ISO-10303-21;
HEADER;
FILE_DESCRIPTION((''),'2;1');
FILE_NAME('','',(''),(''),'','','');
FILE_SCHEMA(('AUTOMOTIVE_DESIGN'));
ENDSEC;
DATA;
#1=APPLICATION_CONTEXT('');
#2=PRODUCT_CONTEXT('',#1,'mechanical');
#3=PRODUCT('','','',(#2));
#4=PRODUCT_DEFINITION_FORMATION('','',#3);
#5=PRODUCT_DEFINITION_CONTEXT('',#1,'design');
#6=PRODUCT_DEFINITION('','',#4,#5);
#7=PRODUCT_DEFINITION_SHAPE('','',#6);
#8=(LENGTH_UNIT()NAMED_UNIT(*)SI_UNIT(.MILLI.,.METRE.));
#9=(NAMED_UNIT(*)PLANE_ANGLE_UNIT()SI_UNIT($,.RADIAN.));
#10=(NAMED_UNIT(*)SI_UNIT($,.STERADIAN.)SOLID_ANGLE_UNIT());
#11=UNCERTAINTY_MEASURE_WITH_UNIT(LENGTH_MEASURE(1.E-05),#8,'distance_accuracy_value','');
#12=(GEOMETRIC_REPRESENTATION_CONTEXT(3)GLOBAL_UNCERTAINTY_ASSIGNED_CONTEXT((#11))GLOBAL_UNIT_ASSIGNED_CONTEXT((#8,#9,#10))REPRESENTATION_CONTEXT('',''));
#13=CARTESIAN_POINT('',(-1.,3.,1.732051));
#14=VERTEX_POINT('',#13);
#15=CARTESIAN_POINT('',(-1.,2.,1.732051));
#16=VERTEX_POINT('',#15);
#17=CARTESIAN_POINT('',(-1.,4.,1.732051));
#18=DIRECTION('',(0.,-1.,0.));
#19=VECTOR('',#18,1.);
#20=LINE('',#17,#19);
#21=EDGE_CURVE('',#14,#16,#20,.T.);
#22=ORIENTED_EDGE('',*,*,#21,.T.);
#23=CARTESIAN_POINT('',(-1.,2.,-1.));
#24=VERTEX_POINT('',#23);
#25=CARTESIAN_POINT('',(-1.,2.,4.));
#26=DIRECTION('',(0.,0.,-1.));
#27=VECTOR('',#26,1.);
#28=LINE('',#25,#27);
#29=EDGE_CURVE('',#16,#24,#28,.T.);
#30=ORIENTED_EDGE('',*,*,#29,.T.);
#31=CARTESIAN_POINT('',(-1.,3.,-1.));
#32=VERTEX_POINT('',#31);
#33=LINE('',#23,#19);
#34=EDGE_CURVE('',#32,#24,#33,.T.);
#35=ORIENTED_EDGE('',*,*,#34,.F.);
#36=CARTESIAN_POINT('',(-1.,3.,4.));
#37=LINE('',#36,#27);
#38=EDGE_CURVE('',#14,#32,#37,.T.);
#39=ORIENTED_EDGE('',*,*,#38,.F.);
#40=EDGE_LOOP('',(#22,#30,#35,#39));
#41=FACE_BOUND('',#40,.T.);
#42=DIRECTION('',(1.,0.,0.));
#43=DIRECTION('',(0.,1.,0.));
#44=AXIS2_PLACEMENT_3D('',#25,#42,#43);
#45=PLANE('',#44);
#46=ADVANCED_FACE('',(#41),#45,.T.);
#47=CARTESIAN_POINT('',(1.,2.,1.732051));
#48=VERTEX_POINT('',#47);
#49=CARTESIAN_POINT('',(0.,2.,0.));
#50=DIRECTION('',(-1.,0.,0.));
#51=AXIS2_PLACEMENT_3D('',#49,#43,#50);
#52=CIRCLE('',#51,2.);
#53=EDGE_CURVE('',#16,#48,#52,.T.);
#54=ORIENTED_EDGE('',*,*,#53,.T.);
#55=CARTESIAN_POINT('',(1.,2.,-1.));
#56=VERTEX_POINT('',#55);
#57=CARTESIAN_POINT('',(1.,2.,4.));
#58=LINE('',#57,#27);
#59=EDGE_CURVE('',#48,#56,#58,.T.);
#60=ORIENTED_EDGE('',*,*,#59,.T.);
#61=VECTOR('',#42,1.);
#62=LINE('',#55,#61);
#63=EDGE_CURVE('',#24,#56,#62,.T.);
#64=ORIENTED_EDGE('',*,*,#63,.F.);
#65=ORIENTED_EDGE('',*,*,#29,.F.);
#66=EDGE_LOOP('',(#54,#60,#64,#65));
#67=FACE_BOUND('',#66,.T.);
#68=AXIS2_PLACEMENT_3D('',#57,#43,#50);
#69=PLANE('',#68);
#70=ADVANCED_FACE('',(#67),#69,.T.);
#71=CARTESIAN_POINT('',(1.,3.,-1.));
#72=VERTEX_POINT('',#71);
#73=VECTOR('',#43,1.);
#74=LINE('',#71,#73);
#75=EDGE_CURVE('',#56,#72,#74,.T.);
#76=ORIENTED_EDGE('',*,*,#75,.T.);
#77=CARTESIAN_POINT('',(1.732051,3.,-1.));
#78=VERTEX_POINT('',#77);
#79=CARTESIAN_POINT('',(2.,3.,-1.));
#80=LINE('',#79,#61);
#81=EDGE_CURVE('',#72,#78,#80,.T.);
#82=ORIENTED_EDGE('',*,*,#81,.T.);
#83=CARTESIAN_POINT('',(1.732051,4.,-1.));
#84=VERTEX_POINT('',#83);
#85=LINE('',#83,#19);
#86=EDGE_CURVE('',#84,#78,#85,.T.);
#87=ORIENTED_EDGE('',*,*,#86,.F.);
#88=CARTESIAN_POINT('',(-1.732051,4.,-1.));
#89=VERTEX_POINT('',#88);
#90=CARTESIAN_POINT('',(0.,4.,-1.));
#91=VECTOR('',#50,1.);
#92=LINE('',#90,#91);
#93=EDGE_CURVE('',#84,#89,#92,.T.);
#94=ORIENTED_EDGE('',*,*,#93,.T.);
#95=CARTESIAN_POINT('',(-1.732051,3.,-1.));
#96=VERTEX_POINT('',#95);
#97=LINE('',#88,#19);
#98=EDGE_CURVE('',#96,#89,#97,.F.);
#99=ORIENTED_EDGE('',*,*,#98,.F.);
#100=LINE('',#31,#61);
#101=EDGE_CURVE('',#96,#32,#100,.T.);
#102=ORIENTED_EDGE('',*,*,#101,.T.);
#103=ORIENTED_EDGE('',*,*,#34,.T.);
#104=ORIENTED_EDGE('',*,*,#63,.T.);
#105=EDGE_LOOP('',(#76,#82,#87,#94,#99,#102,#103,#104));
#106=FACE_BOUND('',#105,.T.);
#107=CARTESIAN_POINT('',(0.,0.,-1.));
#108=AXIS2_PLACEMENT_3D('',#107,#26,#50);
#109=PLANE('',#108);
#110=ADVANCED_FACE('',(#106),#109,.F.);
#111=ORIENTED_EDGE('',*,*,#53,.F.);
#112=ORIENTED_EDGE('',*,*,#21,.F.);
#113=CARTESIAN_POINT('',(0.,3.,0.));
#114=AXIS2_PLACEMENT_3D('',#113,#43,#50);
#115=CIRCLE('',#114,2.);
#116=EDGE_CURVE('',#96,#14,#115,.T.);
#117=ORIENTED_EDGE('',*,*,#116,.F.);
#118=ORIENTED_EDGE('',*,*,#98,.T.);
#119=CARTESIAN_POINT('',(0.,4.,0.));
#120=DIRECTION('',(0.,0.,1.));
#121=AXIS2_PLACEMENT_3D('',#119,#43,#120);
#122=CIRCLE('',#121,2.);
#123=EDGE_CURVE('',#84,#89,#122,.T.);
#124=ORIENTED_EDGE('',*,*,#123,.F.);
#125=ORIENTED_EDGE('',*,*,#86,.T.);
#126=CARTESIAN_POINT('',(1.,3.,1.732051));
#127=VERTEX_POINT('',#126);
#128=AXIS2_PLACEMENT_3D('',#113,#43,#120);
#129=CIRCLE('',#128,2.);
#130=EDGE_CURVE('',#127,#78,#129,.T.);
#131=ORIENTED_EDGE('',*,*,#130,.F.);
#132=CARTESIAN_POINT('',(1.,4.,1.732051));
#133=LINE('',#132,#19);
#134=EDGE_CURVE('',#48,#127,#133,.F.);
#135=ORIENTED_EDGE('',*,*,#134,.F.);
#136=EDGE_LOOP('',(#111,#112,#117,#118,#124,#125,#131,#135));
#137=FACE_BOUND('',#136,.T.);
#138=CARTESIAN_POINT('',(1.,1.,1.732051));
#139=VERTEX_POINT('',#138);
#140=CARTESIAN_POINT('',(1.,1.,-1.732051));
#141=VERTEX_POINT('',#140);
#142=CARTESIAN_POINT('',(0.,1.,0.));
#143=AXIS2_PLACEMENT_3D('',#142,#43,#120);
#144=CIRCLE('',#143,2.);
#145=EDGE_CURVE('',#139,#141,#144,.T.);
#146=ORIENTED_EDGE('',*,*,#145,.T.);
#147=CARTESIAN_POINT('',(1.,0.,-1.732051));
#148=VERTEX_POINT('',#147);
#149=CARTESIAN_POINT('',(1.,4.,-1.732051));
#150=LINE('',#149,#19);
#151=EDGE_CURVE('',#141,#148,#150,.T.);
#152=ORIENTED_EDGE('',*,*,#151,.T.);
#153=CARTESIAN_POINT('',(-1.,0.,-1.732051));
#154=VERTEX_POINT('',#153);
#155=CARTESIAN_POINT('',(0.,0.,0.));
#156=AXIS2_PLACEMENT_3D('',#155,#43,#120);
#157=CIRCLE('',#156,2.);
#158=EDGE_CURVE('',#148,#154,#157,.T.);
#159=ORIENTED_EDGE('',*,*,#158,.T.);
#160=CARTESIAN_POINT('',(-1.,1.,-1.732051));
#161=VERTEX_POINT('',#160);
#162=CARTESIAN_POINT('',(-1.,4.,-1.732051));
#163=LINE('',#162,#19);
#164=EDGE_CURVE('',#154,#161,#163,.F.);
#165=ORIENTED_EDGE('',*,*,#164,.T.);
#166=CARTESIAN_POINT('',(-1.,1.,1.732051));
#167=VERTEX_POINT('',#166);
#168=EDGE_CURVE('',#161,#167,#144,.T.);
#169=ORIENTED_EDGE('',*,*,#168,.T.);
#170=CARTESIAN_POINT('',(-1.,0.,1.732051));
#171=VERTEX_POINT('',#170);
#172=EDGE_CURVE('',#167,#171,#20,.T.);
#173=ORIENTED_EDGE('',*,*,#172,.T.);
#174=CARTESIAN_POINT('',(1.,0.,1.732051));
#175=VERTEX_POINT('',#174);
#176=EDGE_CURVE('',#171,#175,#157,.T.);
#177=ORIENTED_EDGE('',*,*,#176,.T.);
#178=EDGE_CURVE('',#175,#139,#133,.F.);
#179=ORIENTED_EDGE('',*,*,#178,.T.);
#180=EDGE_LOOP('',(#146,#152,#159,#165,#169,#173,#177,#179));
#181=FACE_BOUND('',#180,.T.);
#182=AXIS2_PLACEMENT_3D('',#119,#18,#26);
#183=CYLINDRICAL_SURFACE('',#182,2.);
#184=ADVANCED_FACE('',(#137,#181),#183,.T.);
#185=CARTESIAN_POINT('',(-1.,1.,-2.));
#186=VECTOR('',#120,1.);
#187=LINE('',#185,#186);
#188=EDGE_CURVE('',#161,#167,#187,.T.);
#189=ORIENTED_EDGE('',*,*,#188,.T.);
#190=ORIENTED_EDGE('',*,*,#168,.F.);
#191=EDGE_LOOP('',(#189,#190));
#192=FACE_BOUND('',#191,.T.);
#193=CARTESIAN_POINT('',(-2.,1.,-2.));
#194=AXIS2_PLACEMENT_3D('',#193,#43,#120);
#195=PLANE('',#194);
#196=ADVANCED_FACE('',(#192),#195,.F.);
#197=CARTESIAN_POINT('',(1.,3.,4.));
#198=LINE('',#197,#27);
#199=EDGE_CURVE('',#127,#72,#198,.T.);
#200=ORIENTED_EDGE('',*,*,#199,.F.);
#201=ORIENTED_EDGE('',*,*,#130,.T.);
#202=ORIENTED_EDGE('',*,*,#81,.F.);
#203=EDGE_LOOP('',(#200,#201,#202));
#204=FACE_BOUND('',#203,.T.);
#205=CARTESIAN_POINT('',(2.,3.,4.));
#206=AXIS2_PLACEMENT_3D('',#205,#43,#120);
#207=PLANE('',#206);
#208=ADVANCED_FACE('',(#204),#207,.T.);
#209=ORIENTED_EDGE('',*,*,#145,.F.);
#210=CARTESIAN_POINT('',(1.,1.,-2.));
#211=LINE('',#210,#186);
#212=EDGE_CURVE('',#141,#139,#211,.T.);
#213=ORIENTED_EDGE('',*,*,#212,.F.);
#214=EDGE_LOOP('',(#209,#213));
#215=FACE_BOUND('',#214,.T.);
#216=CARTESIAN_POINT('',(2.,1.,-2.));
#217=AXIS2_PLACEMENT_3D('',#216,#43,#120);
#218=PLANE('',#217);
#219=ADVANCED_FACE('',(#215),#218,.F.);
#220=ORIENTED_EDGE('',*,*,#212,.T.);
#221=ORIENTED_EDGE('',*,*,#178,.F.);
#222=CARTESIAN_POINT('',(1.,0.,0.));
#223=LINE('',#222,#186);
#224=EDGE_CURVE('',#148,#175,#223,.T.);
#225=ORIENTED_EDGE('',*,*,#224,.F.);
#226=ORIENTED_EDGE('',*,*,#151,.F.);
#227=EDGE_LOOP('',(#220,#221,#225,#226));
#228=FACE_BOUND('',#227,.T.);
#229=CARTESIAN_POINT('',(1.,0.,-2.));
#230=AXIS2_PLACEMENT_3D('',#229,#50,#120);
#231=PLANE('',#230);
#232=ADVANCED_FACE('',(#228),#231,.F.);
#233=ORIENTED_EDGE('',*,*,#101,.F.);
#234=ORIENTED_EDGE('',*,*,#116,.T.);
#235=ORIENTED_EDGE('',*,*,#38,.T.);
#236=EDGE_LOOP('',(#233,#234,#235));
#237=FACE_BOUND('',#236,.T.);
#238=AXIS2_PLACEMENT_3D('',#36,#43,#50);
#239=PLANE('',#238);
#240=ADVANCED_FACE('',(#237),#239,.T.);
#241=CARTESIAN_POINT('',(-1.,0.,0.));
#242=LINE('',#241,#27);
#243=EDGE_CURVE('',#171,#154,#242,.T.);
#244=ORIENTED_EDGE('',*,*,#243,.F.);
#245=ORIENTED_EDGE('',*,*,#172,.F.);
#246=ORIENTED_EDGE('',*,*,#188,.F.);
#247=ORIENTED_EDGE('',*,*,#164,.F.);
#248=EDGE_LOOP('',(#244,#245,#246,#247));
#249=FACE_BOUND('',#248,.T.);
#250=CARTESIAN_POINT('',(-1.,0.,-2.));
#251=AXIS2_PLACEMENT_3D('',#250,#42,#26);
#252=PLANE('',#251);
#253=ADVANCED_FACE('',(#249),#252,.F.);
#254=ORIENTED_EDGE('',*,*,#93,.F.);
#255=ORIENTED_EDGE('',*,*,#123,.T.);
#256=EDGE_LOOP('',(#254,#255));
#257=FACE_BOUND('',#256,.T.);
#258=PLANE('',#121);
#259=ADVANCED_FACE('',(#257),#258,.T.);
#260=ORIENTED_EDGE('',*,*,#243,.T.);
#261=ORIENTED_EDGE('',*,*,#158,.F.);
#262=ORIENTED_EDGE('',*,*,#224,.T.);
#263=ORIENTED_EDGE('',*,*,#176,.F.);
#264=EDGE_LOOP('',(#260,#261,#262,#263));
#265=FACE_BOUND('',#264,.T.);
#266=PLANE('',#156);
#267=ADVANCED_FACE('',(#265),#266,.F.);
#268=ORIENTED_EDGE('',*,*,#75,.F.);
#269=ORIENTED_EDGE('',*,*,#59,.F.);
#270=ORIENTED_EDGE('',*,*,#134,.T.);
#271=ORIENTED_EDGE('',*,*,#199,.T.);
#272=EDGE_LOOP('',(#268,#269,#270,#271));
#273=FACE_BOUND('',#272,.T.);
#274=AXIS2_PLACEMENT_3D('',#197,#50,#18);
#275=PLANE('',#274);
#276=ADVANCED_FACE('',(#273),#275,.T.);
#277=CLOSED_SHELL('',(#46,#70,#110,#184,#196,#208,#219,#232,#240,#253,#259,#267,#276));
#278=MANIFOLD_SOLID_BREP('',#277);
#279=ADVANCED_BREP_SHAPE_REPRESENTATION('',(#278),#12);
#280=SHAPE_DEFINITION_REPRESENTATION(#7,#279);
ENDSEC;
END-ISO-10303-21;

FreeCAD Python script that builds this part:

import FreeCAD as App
import Part
import Sketcher
from FreeCAD import Vector

doc = App.newDocument("Part")
body = doc.addObject("PartDesign::Body", "Body")

# Sketch on XZ plane
sketch1 = body.newObject("Sketcher::SketchObject", "Sketch")
sketch1.AttachmentSupport = (doc.getObject("XZ_Plane"), [""])
sketch1.MapMode = "FlatFace"
sketch1.addGeometry(Part.Circle(Vector(0, 0, 0), Vector(0, 0, 1), 2), False)
sketch1.addConstraint([
    Sketcher.Constraint("Coincident", 0, 3, -1, 1),
    Sketcher.Constraint("Diameter", 0, 4.0),
])
pad1 = body.newObject("PartDesign::Pad", "Pad")
pad1.Profile = sketch1
pad1.Length = 4
pad1.Reversed = True

# Sketch on XY plane
sketch2 = body.newObject("Sketcher::SketchObject", "Sketch001")
sketch2.AttachmentSupport = (doc.getObject("XY_Plane"), [""])
sketch2.MapMode = "FlatFace"
sketch2.addGeometry([
    Part.LineSegment(Vector(-2, 1, 0), Vector(-2, 0, 0)),  # 0
    Part.LineSegment(Vector(-2, 0, 0), Vector(-1, 0, 0)),  # 1
    Part.LineSegment(Vector(-1, 0, 0), Vector(-1, 1, 0)),  # 2
    Part.LineSegment(Vector(-1, 1, 0), Vector(-2, 1, 0)),  # 3
    Part.LineSegment(Vector(1, 1, 0), Vector(1, 0, 0)),  # 4
    Part.LineSegment(Vector(1, 0, 0), Vector(2, 0, 0)),  # 5
    Part.LineSegment(Vector(2, 0, 0), Vector(2, 1, 0)),  # 6
    Part.LineSegment(Vector(2, 1, 0), Vector(1, 1, 0)),  # 7
], False)
sketch2.addConstraint([
    Sketcher.Constraint("Coincident", 0, 2, 1, 1),
    Sketcher.Constraint("Coincident", 1, 2, 2, 1),
    Sketcher.Constraint("Coincident", 2, 2, 3, 1),
    Sketcher.Constraint("Coincident", 3, 2, 0, 1),
    Sketcher.Constraint("Coincident", 4, 2, 5, 1),
    Sketcher.Constraint("Coincident", 5, 2, 6, 1),
    Sketcher.Constraint("Coincident", 6, 2, 7, 1),
    Sketcher.Constraint("Coincident", 7, 2, 4, 1),
    Sketcher.Constraint("Vertical", 0),
    Sketcher.Constraint("Horizontal", 1),
    Sketcher.Constraint("Vertical", 2),
    Sketcher.Constraint("Horizontal", 3),
    Sketcher.Constraint("Vertical", 4),
    Sketcher.Constraint("Horizontal", 5),
    Sketcher.Constraint("Vertical", 6),
    Sketcher.Constraint("Horizontal", 7),
    Sketcher.Constraint("Symmetric", 1, 2, 4, 2, -1, 1),
    Sketcher.Constraint("Symmetric", 0, 2, 5, 2, -2),
    Sketcher.Constraint("Horizontal", 3, 2, 6, 2),
    Sketcher.Constraint("Equal", 7, 0),
    Sketcher.Constraint("DistanceX", 1, 1, 1, 2, 1.0),
    Sketcher.Constraint("DistanceX", 0, 2, -1, 1, 2.0),
])
pocket1 = body.newObject("PartDesign::Pocket", "Pocket")
pocket1.Profile = sketch2
pocket1.Length = 4
pocket1.Midplane = True

# Sketch on XY plane
sketch3 = body.newObject("Sketcher::SketchObject", "Sketch002")
sketch3.AttachmentSupport = (doc.getObject("XY_Plane"), [""])
sketch3.MapMode = "FlatFace"
sketch3.addGeometry([
    Part.LineSegment(Vector(2, 4, 0), Vector(-2, 4, 0)),  # 0
    Part.LineSegment(Vector(-2, 4, 0), Vector(-2, 3, 0)),  # 1
    Part.LineSegment(Vector(-2, 3, 0), Vector(-1, 3, 0)),  # 2
    Part.LineSegment(Vector(-1, 3, 0), Vector(-1, 2, 0)),  # 3
    Part.LineSegment(Vector(-1, 2, 0), Vector(1, 2, 0)),  # 4
    Part.LineSegment(Vector(1, 2, 0), Vector(1, 3, 0)),  # 5
    Part.LineSegment(Vector(1, 3, 0), Vector(2, 3, 0)),  # 6
    Part.LineSegment(Vector(2, 3, 0), Vector(2, 4, 0)),  # 7
], False)
sketch3.addConstraint([
    Sketcher.Constraint("Coincident", 0, 2, 1, 1),
    Sketcher.Constraint("Coincident", 1, 2, 2, 1),
    Sketcher.Constraint("Coincident", 2, 2, 3, 1),
    Sketcher.Constraint("Coincident", 3, 2, 4, 1),
    Sketcher.Constraint("Coincident", 4, 2, 5, 1),
    Sketcher.Constraint("Coincident", 5, 2, 6, 1),
    Sketcher.Constraint("Coincident", 6, 2, 7, 1),
    Sketcher.Constraint("Coincident", 7, 2, 0, 1),
    Sketcher.Constraint("Horizontal", 0),
    Sketcher.Constraint("Vertical", 1),
    Sketcher.Constraint("Horizontal", 2),
    Sketcher.Constraint("Vertical", 3),
    Sketcher.Constraint("Horizontal", 4),
    Sketcher.Constraint("Vertical", 5),
    Sketcher.Constraint("Horizontal", 6),
    Sketcher.Constraint("Vertical", 7),
    Sketcher.Constraint("Symmetric", 2, 2, 5, 2, -2),
    Sketcher.Constraint("Equal", 2, 6),
    Sketcher.Constraint("Equal", 6, 1),
    Sketcher.Constraint("Equal", 1, 3),
    Sketcher.Constraint("DistanceX", 0, 2, 0, 1, 4.0),
    Sketcher.Constraint("DistanceX", 2, 1, 2, 2, 1.0),
    Sketcher.Constraint("DistanceY", -1, 1, 0, 2, 4.0),
])
pocket2 = body.newObject("PartDesign::Pocket", "Pocket001")
pocket2.Profile = sketch3
pocket2.Type = "TwoLengths"
pocket2.Length = 4
pocket2.Length2 = 1
pocket2.Reversed = True

doc.recompute()
